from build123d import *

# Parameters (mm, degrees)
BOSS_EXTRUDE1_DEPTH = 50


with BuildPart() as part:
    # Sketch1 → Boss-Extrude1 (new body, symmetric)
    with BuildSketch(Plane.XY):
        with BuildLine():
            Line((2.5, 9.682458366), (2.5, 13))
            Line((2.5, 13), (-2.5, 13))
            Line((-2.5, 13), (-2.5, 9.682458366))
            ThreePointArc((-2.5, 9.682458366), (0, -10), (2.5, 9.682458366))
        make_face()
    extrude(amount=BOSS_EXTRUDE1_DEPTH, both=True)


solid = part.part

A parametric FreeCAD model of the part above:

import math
import FreeCAD as App
import Part
import Sketcher
Q = App.Units.Quantity

doc = App.newDocument("Part")
body = doc.addObject("PartDesign::Body", "Body")

# Sketch on XY plane
sketch1 = body.newObject("Sketcher::SketchObject", "Sketch")
sketch1.AttachmentSupport = (doc.getObject("XY_Plane"), [""])
sketch1.MapMode = "FlatFace"
sketch1.addGeometry(Part.LineSegment(App.Vector(2.5, 9.7, 0), App.Vector(2.5, 13, 0)), False)
sketch1.addGeometry(Part.LineSegment(App.Vector(2.5, 13, 0), App.Vector(-2.5, 13, 0)), False)
sketch1.addGeometry(Part.LineSegment(App.Vector(-2.5, 13, 0), App.Vector(-2.5, 9.7, 0)), False)
sketch1.addGeometry(Part.ArcOfCircle(Part.Circle(App.Vector(0, 0, 0), App.Vector(0, 0, 1), 10), math.radians(104), math.radians(436)), False)
sketch1.addConstraint(Sketcher.Constraint("Coincident", 0, 2, 1, 1))
sketch1.addConstraint(Sketcher.Constraint("Coincident", 1, 2, 2, 1))
sketch1.addConstraint(Sketcher.Constraint("Coincident", 2, 2, 3, 1))
sketch1.addConstraint(Sketcher.Constraint("Coincident", 3, 2, 0, 1))
sketch1.addConstraint(Sketcher.Constraint("Vertical", 0))
sketch1.addConstraint(Sketcher.Constraint("Horizontal", 1))
sketch1.addConstraint(Sketcher.Constraint("Vertical", 2))
sketch1.addConstraint(Sketcher.Constraint("Coincident", 3, 3, -1, 1))
sketch1.addConstraint(Sketcher.Constraint("Horizontal", 2, 2, 3, 2))
sketch1.addConstraint(Sketcher.Constraint("Radius", 3, Q("10 mm")))
sketch1.addConstraint(Sketcher.Constraint("DistanceX", 1, 2, 1, 1, Q("5 mm")))
sketch1.addConstraint(Sketcher.Constraint("DistanceY", -1, 1, 0, 2, Q("13 mm")))
pad1 = body.newObject("PartDesign::Pad", "Pad")
pad1.Profile = sketch1
pad1.Length = 100
pad1.Midplane = True

doc.recompute()
